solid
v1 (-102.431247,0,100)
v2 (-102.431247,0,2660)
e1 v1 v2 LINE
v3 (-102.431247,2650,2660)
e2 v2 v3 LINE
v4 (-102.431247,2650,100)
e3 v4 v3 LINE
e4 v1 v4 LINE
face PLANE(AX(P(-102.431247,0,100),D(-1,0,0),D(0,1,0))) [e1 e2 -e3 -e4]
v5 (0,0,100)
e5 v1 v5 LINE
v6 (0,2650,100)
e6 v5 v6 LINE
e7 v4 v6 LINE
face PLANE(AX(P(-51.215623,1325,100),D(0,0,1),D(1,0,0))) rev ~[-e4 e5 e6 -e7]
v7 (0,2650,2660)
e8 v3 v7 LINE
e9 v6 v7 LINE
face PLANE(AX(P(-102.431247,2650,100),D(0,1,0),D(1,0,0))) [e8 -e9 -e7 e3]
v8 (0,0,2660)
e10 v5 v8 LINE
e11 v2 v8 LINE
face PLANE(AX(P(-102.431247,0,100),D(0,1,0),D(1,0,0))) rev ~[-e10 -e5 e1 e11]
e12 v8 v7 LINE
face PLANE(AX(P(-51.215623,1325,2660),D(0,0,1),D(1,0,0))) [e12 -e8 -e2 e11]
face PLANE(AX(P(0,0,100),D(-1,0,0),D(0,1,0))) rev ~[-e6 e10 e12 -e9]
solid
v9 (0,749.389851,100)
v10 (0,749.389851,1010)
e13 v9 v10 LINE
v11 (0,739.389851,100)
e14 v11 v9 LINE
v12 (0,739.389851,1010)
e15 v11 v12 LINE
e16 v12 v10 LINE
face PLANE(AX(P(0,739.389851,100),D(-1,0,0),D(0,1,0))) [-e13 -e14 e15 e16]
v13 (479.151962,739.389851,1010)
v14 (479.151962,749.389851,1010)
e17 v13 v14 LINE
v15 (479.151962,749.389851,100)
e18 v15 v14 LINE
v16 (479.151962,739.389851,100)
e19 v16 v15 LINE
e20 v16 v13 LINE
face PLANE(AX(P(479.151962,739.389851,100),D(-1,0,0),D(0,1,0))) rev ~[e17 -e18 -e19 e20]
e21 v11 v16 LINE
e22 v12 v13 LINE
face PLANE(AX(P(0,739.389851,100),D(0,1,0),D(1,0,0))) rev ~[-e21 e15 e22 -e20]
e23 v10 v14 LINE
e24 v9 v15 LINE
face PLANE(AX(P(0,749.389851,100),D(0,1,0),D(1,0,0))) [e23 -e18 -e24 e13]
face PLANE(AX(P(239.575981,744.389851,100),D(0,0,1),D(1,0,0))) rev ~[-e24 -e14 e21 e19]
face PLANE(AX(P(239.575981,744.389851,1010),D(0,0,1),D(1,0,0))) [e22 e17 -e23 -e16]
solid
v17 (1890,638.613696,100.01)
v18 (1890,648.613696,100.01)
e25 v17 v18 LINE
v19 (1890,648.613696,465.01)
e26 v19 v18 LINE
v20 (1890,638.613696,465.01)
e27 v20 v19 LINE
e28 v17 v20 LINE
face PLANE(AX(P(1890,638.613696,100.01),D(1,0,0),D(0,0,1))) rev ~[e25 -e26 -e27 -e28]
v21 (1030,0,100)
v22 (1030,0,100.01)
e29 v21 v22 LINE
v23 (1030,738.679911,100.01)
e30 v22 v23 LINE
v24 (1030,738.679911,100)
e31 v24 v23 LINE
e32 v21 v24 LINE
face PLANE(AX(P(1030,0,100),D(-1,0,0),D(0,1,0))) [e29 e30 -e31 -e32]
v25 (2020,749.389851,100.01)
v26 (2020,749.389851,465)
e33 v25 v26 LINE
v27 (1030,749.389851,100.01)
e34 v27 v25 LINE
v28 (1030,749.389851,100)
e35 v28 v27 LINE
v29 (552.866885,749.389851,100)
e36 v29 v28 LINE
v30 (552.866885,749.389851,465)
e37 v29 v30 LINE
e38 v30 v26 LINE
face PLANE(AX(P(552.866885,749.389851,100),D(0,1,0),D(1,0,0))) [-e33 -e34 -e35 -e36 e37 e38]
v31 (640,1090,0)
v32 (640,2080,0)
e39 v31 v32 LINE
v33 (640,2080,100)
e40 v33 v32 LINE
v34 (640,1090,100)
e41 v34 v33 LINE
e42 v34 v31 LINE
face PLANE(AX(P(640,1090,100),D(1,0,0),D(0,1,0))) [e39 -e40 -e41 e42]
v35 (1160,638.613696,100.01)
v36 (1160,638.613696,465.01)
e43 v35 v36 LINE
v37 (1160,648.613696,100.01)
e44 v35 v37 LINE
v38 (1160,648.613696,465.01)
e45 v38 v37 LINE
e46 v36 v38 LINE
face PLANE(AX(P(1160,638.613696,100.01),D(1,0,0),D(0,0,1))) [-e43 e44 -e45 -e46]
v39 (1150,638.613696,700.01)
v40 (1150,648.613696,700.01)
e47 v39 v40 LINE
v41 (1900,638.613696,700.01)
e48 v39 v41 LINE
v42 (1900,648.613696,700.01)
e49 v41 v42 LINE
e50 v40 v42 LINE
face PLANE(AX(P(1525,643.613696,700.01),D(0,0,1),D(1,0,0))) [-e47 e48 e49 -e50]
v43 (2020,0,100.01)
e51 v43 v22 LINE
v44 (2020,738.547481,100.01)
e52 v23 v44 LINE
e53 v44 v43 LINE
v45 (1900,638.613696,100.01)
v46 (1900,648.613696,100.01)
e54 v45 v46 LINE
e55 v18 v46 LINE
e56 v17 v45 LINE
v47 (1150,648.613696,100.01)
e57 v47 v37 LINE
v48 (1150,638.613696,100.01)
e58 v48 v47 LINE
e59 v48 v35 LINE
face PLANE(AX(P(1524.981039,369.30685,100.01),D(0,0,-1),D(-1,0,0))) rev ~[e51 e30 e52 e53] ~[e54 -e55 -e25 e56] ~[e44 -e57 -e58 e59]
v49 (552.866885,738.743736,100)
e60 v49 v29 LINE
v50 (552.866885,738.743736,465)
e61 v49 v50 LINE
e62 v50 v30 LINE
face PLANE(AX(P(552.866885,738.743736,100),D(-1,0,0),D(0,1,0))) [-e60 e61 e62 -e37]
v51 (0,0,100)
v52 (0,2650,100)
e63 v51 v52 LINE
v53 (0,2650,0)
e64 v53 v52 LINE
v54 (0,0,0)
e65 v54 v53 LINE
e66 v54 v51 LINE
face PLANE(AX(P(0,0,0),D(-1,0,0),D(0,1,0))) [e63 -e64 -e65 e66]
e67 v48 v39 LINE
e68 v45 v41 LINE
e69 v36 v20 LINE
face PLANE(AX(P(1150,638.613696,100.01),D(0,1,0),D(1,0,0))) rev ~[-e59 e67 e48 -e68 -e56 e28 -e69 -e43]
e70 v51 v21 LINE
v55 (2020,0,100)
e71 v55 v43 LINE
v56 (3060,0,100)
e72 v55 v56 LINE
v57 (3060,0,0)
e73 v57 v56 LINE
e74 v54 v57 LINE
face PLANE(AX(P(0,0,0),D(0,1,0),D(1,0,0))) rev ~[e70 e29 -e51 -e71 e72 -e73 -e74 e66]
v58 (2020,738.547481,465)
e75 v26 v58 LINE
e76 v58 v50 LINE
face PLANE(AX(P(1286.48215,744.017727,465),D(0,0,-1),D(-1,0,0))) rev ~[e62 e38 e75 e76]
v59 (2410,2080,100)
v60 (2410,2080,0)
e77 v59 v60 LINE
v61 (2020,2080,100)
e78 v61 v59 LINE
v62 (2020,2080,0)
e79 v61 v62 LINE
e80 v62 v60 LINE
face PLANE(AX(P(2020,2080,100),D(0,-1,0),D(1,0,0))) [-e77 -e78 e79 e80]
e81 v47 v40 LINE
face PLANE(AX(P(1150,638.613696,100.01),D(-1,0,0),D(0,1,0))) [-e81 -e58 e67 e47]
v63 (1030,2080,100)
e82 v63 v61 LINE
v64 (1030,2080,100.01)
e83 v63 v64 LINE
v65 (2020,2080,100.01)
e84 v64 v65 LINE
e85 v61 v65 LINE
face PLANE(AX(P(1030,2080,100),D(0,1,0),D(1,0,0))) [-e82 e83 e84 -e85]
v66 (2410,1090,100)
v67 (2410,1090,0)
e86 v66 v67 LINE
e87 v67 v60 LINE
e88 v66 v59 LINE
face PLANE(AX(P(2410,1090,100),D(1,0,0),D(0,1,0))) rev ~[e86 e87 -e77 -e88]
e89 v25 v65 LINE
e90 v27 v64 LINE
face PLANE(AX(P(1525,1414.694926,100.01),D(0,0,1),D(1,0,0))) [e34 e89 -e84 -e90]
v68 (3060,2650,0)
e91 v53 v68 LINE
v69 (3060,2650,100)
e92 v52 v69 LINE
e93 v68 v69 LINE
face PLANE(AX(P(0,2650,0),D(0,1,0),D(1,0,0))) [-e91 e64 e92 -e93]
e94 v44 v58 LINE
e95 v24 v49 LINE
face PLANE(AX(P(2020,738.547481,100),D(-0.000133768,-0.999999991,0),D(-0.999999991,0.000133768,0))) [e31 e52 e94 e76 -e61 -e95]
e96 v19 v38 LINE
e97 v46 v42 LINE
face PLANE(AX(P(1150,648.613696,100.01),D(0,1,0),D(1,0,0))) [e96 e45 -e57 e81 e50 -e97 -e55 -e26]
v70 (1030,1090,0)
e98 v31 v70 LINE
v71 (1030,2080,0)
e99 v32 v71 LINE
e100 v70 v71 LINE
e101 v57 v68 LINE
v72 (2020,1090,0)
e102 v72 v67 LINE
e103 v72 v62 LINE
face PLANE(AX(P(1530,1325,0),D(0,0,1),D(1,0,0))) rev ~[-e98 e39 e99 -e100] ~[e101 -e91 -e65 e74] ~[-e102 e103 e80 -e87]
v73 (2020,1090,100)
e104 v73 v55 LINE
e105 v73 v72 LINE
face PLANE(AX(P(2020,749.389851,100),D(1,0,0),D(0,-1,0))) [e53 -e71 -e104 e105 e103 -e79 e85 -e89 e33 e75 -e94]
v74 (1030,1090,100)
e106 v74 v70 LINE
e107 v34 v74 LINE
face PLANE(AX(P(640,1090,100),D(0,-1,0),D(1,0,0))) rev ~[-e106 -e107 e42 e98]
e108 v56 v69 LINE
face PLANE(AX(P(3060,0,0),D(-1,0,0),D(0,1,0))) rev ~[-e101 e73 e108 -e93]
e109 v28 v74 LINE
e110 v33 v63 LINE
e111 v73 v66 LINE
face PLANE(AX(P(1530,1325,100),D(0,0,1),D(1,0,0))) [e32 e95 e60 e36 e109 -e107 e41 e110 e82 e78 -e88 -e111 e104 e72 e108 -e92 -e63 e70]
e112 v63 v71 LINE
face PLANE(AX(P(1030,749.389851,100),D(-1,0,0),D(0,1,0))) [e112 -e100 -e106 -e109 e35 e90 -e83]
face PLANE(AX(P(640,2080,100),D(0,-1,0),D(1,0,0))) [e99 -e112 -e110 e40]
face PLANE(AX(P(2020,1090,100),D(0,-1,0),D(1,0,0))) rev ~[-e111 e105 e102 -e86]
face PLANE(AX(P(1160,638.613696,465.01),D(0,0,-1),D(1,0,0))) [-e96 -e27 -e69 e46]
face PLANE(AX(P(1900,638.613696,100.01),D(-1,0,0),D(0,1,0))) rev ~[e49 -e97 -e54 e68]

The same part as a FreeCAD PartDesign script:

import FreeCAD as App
import Part
import Sketcher
Q = App.Units.Quantity

doc = App.newDocument("Part")
params = doc.addObject("Spreadsheet::Sheet", "Params")
for row, (alias, value) in enumerate([
    ("sketch1_width", "3060 mm"),
    ("sketch1_height", "2650 mm"),
    ("pad1_length", "100 mm"),
    ("sketch2_width", "390 mm"),
    ("sketch2_height", "990 mm"),
    ("pocket1_length", "749 mm"),
    ("pad2_length", "365 mm"),
    ("sketch4_width", "990 mm"),
    ("pad3_length", "0.01 mm"),
    ("sketch5_width", "750 mm"),
    ("sketch5_height", "10 mm"),
    ("pad4_length", "600 mm"),
    ("sketch6_width", "730 mm"),
    ("sketch6_height", "365 mm"),
    ("pocket2_length", "45 mm"),
    ("sketch7_height", "2650 mm"),
    ("pad5_length", "2560 mm"),
    ("sketch8_height", "10 mm"),
    ("pad6_length", "910 mm"),
], start=1):
    params.set(f"A{row}", alias)
    params.set(f"B{row}", "=" + value)
    params.setAlias(f"B{row}", alias)

body = doc.addObject("PartDesign::Body", "Body")

# Sketch on XY plane
sketch1 = doc.addObject("Sketcher::SketchObject", "Sketch")
body.addObject(sketch1)
sketch1.AttachmentSupport = (doc.XY_Plane, [""])
sketch1.MapMode = "FlatFace"
sketch1.addGeometry([
    Part.LineSegment(App.Vector(0, 2650, 0), App.Vector(0, 0, 0)),
    Part.LineSegment(App.Vector(0, 0, 0), App.Vector(3060, 0, 0)),
    Part.LineSegment(App.Vector(3060, 0, 0), App.Vector(3060, 2650, 0)),
    Part.LineSegment(App.Vector(3060, 2650, 0), App.Vector(0, 2650, 0)),
], False)
sketch1.addConstraint([
    Sketcher.Constraint("Coincident", 0, 2, 1, 1),
    Sketcher.Constraint("Coincident", 1, 2, 2, 1),
    Sketcher.Constraint("Coincident", 2, 2, 3, 1),
    Sketcher.Constraint("Coincident", 3, 2, 0, 1),
    Sketcher.Constraint("Vertical", 0),
    Sketcher.Constraint("Horizontal", 1),
    Sketcher.Constraint("Vertical", 2),
    Sketcher.Constraint("Horizontal", 3),
    Sketcher.Constraint("Coincident", 0, 2, -1, 1),
    Sketcher.Constraint("DistanceX", 1, 1, 1, 2, Q("3060 mm")),
    Sketcher.Constraint("DistanceY", 0, 2, 0, 1, Q("2650 mm")),
])
sketch1.setExpression("Constraints[9]", "Params.sketch1_width")
sketch1.setExpression("Constraints[10]", "Params.sketch1_height")
pad1 = doc.addObject("PartDesign::Pad", "Pad")
body.addObject(pad1)
pad1.Profile = sketch1
pad1.setExpression("Length", "Params.pad1_length")

# Sketch on XY plane
sketch2 = doc.addObject("Sketcher::SketchObject", "Sketch001")
body.addObject(sketch2)
sketch2.AttachmentSupport = (doc.XY_Plane, [""])
sketch2.MapMode = "FlatFace"
sketch2.AttachmentOffset = App.Placement(App.Vector(0, 0, 100), App.Rotation())
sketch2.addGeometry([
    Part.LineSegment(App.Vector(2020, 2080, 0), App.Vector(2020, 1090, 0)),  # 0
    Part.LineSegment(App.Vector(2020, 1090, 0), App.Vector(2410, 1090, 0)),  # 1
    Part.LineSegment(App.Vector(2410, 1090, 0), App.Vector(2410, 2080, 0)),  # 2
    Part.LineSegment(App.Vector(2410, 2080, 0), App.Vector(2020, 2080, 0)),  # 3
    Part.LineSegment(App.Vector(640, 2080, 0), App.Vector(640, 1090, 0)),  # 4
    Part.LineSegment(App.Vector(640, 1090, 0), App.Vector(1030, 1090, 0)),  # 5
    Part.LineSegment(App.Vector(1030, 1090, 0), App.Vector(1030, 2080, 0)),  # 6
    Part.LineSegment(App.Vector(1030, 2080, 0), App.Vector(640, 2080, 0)),  # 7
], False)
sketch2.addConstraint([
    Sketcher.Constraint("Coincident", 0, 2, 1, 1),
    Sketcher.Constraint("Coincident", 1, 2, 2, 1),
    Sketcher.Constraint("Coincident", 2, 2, 3, 1),
    Sketcher.Constraint("Coincident", 3, 2, 0, 1),
    Sketcher.Constraint("Coincident", 4, 2, 5, 1),
    Sketcher.Constraint("Coincident", 5, 2, 6, 1),
    Sketcher.Constraint("Coincident", 6, 2, 7, 1),
    Sketcher.Constraint("Coincident", 7, 2, 4, 1),
    Sketcher.Constraint("Vertical", 0),
    Sketcher.Constraint("Horizontal", 1),
    Sketcher.Constraint("Vertical", 2),
    Sketcher.Constraint("Horizontal", 3),
    Sketcher.Constraint("Vertical", 4),
    Sketcher.Constraint("Horizontal", 5),
    Sketcher.Constraint("Vertical", 6),
    Sketcher.Constraint("Horizontal", 7),
    Sketcher.Constraint("Horizontal", 1, 2, 4, 2),
    Sketcher.Constraint("Horizontal", 3, 2, 6, 2),
    Sketcher.Constraint("Equal", 3, 5),
    Sketcher.Constraint("DistanceX", 1, 1, 1, 2, Q("390 mm")),
    Sketcher.Constraint("DistanceY", 0, 2, 0, 1, Q("990 mm")),
    Sketcher.Constraint("DistanceX", -1, 1, 0, 2, Q("2020 mm")),
    Sketcher.Constraint("DistanceY", -1, 1, 0, 2, Q("1090 mm")),
    Sketcher.Constraint("DistanceX", -1, 1, 4, 2, Q("640 mm")),
])
sketch2.setExpression("Constraints[19]", "Params.sketch2_width")
sketch2.setExpression("Constraints[20]", "Params.sketch2_height")
pocket1 = doc.addObject("PartDesign::Pocket", "Pocket")
body.addObject(pocket1)
pocket1.Profile = sketch2
pocket1.setExpression("Length", "Params.pocket1_length")

# Sketch on XY plane
sketch3 = doc.addObject("Sketcher::SketchObject", "Sketch002")
body.addObject(sketch3)
sketch3.AttachmentSupport = (doc.XY_Plane, [""])
sketch3.MapMode = "FlatFace"
sketch3.AttachmentOffset = App.Placement(App.Vector(0, 0, 100), App.Rotation())
sketch3.addGeometry([
    Part.LineSegment(App.Vector(2020, 749, 0), App.Vector(553, 749, 0)),
    Part.LineSegment(App.Vector(553, 749, 0), App.Vector(553, 739, 0)),
    Part.LineSegment(App.Vector(553, 739, 0), App.Vector(2020, 739, 0)),
    Part.LineSegment(App.Vector(2020, 739, 0), App.Vector(2020, 749, 0)),
], False)
sketch3.addConstraint([
    Sketcher.Constraint("Coincident", 0, 2, 1, 1),
    Sketcher.Constraint("Coincident", 1, 2, 2, 1),
    Sketcher.Constraint("Coincident", 2, 2, 3, 1),
    Sketcher.Constraint("Coincident", 3, 2, 0, 1),
    Sketcher.Constraint("Horizontal", 0),
    Sketcher.Constraint("Vertical", 1),
    Sketcher.Constraint("Vertical", 3),
    Sketcher.Constraint("DistanceX", -1, 1, 2, 2, Q("2020 mm")),
    Sketcher.Constraint("DistanceY", 3, 1, 3, 2, Q("10.842371 mm")),
    Sketcher.Constraint("DistanceX", 0, 2, 0, 1, Q("1467.133115 mm")),
    Sketcher.Constraint("DistanceY", 1, 2, 1, 1, Q("10.646115 mm")),
    Sketcher.Constraint("DistanceY", -1, 1, 0, 2, Q("749.389851 mm")),
])
pad2 = doc.addObject("PartDesign::Pad", "Pad001")
body.addObject(pad2)
pad2.Profile = sketch3
pad2.setExpression("Length", "Params.pad2_length")

# Sketch on XY plane
sketch4 = doc.addObject("Sketcher::SketchObject", "Sketch003")
body.addObject(sketch4)
sketch4.AttachmentSupport = (doc.XY_Plane, [""])
sketch4.MapMode = "FlatFace"
sketch4.AttachmentOffset = App.Placement(App.Vector(0, 0, 100), App.Rotation())
sketch4.addGeometry([
    Part.LineSegment(App.Vector(1030, 2080, 0), App.Vector(1030, 749, 0)),  # 0
    Part.LineSegment(App.Vector(1030, 749, 0), App.Vector(2020, 749, 0)),  # 1
    Part.LineSegment(App.Vector(2020, 749, 0), App.Vector(2020, 2080, 0)),  # 2
    Part.LineSegment(App.Vector(2020, 2080, 0), App.Vector(1030, 2080, 0)),  # 3
    Part.LineSegment(App.Vector(2020, 0, 0), App.Vector(2020, 739, 0)),  # 4
    Part.LineSegment(App.Vector(2020, 739, 0), App.Vector(1030, 739, 0)),  # 5
    Part.LineSegment(App.Vector(1030, 739, 0), App.Vector(1030, 0, 0)),  # 6
    Part.LineSegment(App.Vector(1030, 0, 0), App.Vector(2020, 0, 0)),  # 7
], False)
sketch4.addConstraint([
    Sketcher.Constraint("Coincident", 0, 2, 1, 1),
    Sketcher.Constraint("Coincident", 1, 2, 2, 1),
    Sketcher.Constraint("Coincident", 2, 2, 3, 1),
    Sketcher.Constraint("Coincident", 3, 2, 0, 1),
    Sketcher.Constraint("Coincident", 4, 2, 5, 1),
    Sketcher.Constraint("Coincident", 5, 2, 6, 1),
    Sketcher.Constraint("Coincident", 6, 2, 7, 1),
    Sketcher.Constraint("Coincident", 7, 2, 4, 1),
    Sketcher.Constraint("Vertical", 0),
    Sketcher.Constraint("Horizontal", 1),
    Sketcher.Constraint("Vertical", 2),
    Sketcher.Constraint("Horizontal", 3),
    Sketcher.Constraint("Vertical", 4),
    Sketcher.Constraint("Vertical", 6),
    Sketcher.Constraint("Horizontal", 7),
    Sketcher.Constraint("PointOnObject", 6, 2, -1),
    Sketcher.Constraint("Vertical", 2, 2, 4, 2),
    Sketcher.Constraint("Vertical", 3, 2, 5, 2),
    Sketcher.Constraint("DistanceX", 1, 1, 1, 2, Q("990 mm")),
    Sketcher.Constraint("DistanceX", -1, 1, 0, 2, Q("1030 mm")),
    Sketcher.Constraint("DistanceY", -1, 1, 2, 2, Q("2080 mm")),
    Sketcher.Constraint("DistanceY", 0, 2, 0, 1, Q("1330.610149 mm")),
    Sketcher.Constraint("DistanceY", 4, 1, 4, 2, Q("738.547481 mm")),
    Sketcher.Constraint("DistanceY", 6, 2, 6, 1, Q("738.679911 mm")),
])
sketch4.setExpression("Constraints[18]", "Params.sketch4_width")
pad3 = doc.addObject("PartDesign::Pad", "Pad002")
body.addObject(pad3)
pad3.Profile = sketch4
pad3.setExpression("Length", "Params.pad3_length")

# Sketch on XY plane
sketch5 = doc.addObject("Sketcher::SketchObject", "Sketch004")
body.addObject(sketch5)
sketch5.AttachmentSupport = (doc.XY_Plane, [""])
sketch5.MapMode = "FlatFace"
sketch5.AttachmentOffset = App.Placement(App.Vector(0, 0, 100.01), App.Rotation())
sketch5.addGeometry([
    Part.LineSegment(App.Vector(1150, 649, 0), App.Vector(1150, 639, 0)),
    Part.LineSegment(App.Vector(1150, 639, 0), App.Vector(1900, 639, 0)),
    Part.LineSegment(App.Vector(1900, 639, 0), App.Vector(1900, 649, 0)),
    Part.LineSegment(App.Vector(1900, 649, 0), App.Vector(1150, 649, 0)),
], False)
sketch5.addConstraint([
    Sketcher.Constraint("Coincident", 0, 2, 1, 1),
    Sketcher.Constraint("Coincident", 1, 2, 2, 1),
    Sketcher.Constraint("Coincident", 2, 2, 3, 1),
    Sketcher.Constraint("Coincident", 3, 2, 0, 1),
    Sketcher.Constraint("Vertical", 0),
    Sketcher.Constraint("Horizontal", 1),
    Sketcher.Constraint("Vertical", 2),
    Sketcher.Constraint("Horizontal", 3),
    Sketcher.Constraint("DistanceX", 1, 1, 1, 2, Q("750 mm")),
    Sketcher.Constraint("DistanceY", 0, 2, 0, 1, Q("10 mm")),
    Sketcher.Constraint("DistanceX", -1, 1, 0, 2, Q("1150 mm")),
    Sketcher.Constraint("DistanceY", -1, 1, 0, 2, Q("638.613696 mm")),
])
sketch5.setExpression("Constraints[8]", "Params.sketch5_width")
sketch5.setExpression("Constraints[9]", "Params.sketch5_height")
pad4 = doc.addObject("PartDesign::Pad", "Pad003")
body.addObject(pad4)
pad4.Profile = sketch5
pad4.setExpression("Length", "Params.pad4_length")

# Sketch on XZ plane
sketch6 = doc.addObject("Sketcher::SketchObject", "Sketch005")
body.addObject(sketch6)
sketch6.AttachmentSupport = (doc.XZ_Plane, [""])
sketch6.MapMode = "FlatFace"
sketch6.AttachmentOffset = App.Placement(App.Vector(0, 0, -638.613696), App.Rotation())
sketch6.addGeometry([
    Part.LineSegment(App.Vector(1160, 465, 0), App.Vector(1160, 100, 0)),
    Part.LineSegment(App.Vector(1160, 100, 0), App.Vector(1890, 100, 0)),
    Part.LineSegment(App.Vector(1890, 100, 0), App.Vector(1890, 465, 0)),
    Part.LineSegment(App.Vector(1890, 465, 0), App.Vector(1160, 465, 0)),
], False)
sketch6.addConstraint([
    Sketcher.Constraint("Coincident", 0, 2, 1, 1),
    Sketcher.Constraint("Coincident", 1, 2, 2, 1),
    Sketcher.Constraint("Coincident", 2, 2, 3, 1),
    Sketcher.Constraint("Coincident", 3, 2, 0, 1),
    Sketcher.Constraint("Vertical", 0),
    Sketcher.Constraint("Horizontal", 1),
    Sketcher.Constraint("Vertical", 2),
    Sketcher.Constraint("Horizontal", 3),
    Sketcher.Constraint("DistanceX", 1, 1, 1, 2, Q("730 mm")),
    Sketcher.Constraint("DistanceY", 0, 2, 0, 1, Q("365 mm")),
    Sketcher.Constraint("DistanceX", -1, 1, 0, 2, Q("1160 mm")),
    Sketcher.Constraint("DistanceY", -1, 1, 0, 2, Q("100.01 mm")),
])
sketch6.setExpression("Constraints[8]", "Params.sketch6_width")
sketch6.setExpression("Constraints[9]", "Params.sketch6_height")
pocket2 = doc.addObject("PartDesign::Pocket", "Pocket001")
body.addObject(pocket2)
pocket2.Profile = sketch6
pocket2.setExpression("Length", "Params.pocket2_length")
body2 = doc.addObject("PartDesign::Body", "Body001")

# Sketch on XY plane
sketch7 = doc.addObject("Sketcher::SketchObject", "Sketch006")
body2.addObject(sketch7)
sketch7.AttachmentSupport = (doc.getObject("XY_Plane001"), [""])
sketch7.MapMode = "FlatFace"
sketch7.AttachmentOffset = App.Placement(App.Vector(0, 0, 100), App.Rotation())
sketch7.addGeometry([
    Part.LineSegment(App.Vector(-102, 2650, 0), App.Vector(-102, 0, 0)),
    Part.LineSegment(App.Vector(-102, 0, 0), App.Vector(0, 0, 0)),
    Part.LineSegment(App.Vector(0, 0, 0), App.Vector(0, 2650, 0)),
    Part.LineSegment(App.Vector(0, 2650, 0), App.Vector(-102, 2650, 0)),
], False)
sketch7.addConstraint([
    Sketcher.Constraint("Coincident", 0, 2, 1, 1),
    Sketcher.Constraint("Coincident", 1, 2, 2, 1),
    Sketcher.Constraint("Coincident", 2, 2, 3, 1),
    Sketcher.Constraint("Coincident", 3, 2, 0, 1),
    Sketcher.Constraint("Vertical", 0),
    Sketcher.Constraint("Horizontal", 1),
    Sketcher.Constraint("Vertical", 2),
    Sketcher.Constraint("Horizontal", 3),
    Sketcher.Constraint("Coincident", 1, 2, -1, 1),
    Sketcher.Constraint("DistanceY", 0, 2, 0, 1, Q("2650 mm")),
    Sketcher.Constraint("DistanceX", 1, 1, 1, 2, Q("102.431247 mm")),
])
sketch7.setExpression("Constraints[9]", "Params.sketch7_height")
pad5 = doc.addObject("PartDesign::Pad", "Pad004")
body2.addObject(pad5)
pad5.Profile = sketch7
pad5.setExpression("Length", "Params.pad5_length")
body3 = doc.addObject("PartDesign::Body", "Body002")

# Sketch on XY plane
sketch8 = doc.addObject("Sketcher::SketchObject", "Sketch007")
body3.addObject(sketch8)
sketch8.AttachmentSupport = (doc.getObject("XY_Plane002"), [""])
sketch8.MapMode = "FlatFace"
sketch8.AttachmentOffset = App.Placement(App.Vector(0, 0, 100), App.Rotation())
sketch8.addGeometry([
    Part.LineSegment(App.Vector(0, 749, 0), App.Vector(0, 739, 0)),
    Part.LineSegment(App.Vector(0, 739, 0), App.Vector(479, 739, 0)),
    Part.LineSegment(App.Vector(479, 739, 0), App.Vector(479, 749, 0)),
    Part.LineSegment(App.Vector(479, 749, 0), App.Vector(0, 749, 0)),
], False)
sketch8.addConstraint([
    Sketcher.Constraint("Coincident", 0, 2, 1, 1),
    Sketcher.Constraint("Coincident", 1, 2, 2, 1),
    Sketcher.Constraint("Coincident", 2, 2, 3, 1),
    Sketcher.Constraint("Coincident", 3, 2, 0, 1),
    Sketcher.Constraint("Vertical", 0),
    Sketcher.Constraint("Horizontal", 1),
    Sketcher.Constraint("Vertical", 2),
    Sketcher.Constraint("Horizontal", 3),
    Sketcher.Constraint("PointOnObject", 0, 2, -2),
    Sketcher.Constraint("DistanceY", 0, 2, 0, 1, Q("10 mm")),
    Sketcher.Constraint("DistanceX", 1, 1, 1, 2, Q("479.151962 mm")),
    Sketcher.Constraint("DistanceY", -1, 1, 0, 2, Q("739.389851 mm")),
])
sketch8.setExpression("Constraints[9]", "Params.sketch8_height")
pad6 = doc.addObject("PartDesign::Pad", "Pad005")
body3.addObject(pad6)
pad6.Profile = sketch8
pad6.setExpression("Length", "Params.pad6_length")

doc.recompute()
